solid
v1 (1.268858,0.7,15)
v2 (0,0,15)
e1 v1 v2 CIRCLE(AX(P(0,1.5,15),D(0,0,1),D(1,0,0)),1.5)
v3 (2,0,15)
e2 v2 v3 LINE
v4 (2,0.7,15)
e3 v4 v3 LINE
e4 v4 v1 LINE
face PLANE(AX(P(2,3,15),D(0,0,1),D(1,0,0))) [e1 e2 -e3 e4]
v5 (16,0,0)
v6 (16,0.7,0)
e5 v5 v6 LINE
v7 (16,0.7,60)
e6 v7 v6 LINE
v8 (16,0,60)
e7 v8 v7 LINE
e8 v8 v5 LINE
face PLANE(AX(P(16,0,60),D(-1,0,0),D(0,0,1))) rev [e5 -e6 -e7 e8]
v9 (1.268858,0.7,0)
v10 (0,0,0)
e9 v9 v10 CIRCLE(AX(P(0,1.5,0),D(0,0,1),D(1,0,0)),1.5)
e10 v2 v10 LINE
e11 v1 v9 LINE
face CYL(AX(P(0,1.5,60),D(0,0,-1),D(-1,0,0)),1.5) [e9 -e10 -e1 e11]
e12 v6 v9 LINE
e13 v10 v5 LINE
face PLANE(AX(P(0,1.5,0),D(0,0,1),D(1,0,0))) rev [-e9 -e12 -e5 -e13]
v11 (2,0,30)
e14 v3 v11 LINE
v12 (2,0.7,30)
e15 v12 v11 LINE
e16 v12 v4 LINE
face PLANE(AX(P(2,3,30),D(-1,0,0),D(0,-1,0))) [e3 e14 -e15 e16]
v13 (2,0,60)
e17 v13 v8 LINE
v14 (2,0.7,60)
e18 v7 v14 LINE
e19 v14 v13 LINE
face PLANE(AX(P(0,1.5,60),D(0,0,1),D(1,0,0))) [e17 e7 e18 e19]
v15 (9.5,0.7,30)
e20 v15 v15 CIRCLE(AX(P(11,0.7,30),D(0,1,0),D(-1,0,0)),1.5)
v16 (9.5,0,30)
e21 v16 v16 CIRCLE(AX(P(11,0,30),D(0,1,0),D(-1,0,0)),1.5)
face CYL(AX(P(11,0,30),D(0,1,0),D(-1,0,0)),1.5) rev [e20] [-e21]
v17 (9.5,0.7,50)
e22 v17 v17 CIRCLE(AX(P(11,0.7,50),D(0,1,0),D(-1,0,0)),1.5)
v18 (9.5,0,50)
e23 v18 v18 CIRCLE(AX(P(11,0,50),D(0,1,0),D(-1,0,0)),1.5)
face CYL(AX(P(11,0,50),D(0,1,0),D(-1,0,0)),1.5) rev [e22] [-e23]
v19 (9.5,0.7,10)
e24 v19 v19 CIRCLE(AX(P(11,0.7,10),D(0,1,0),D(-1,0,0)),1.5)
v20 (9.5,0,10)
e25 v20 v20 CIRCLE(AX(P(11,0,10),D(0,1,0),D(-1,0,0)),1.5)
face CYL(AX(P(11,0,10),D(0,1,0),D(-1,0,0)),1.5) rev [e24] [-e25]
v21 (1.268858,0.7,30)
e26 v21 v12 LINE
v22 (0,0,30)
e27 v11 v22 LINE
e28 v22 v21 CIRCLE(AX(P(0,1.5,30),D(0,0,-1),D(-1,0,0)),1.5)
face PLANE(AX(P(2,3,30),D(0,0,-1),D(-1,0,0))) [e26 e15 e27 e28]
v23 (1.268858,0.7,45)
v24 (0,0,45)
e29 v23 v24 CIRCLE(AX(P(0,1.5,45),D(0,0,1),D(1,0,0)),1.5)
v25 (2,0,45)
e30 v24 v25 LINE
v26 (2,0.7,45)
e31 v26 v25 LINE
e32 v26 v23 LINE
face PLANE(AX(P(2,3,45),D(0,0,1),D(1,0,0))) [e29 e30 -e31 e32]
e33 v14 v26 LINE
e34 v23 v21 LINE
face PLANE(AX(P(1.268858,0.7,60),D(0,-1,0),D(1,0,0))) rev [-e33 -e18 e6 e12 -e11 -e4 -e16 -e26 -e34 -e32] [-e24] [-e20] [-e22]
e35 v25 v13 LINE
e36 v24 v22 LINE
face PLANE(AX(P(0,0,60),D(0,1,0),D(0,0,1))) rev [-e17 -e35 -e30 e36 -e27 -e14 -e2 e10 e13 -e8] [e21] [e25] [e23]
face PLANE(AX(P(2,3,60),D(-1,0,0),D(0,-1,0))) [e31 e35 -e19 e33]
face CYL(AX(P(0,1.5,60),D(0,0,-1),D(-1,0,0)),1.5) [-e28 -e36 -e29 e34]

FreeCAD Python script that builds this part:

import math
import FreeCAD as App
import Part
import Sketcher
from FreeCAD import Vector


def add_polygon(sketch, points):
    """Adds a closed chain of lines whose ends are joined by coincident constraints."""
    first, n = sketch.GeometryCount, len(points)
    for a, b in zip(points, points[1:] + points[:1]):
        sketch.addGeometry(Part.LineSegment(App.Vector(*a, 0), App.Vector(*b, 0)), False)
    for i in range(n):
        sketch.addConstraint(Sketcher.Constraint("Coincident", first + i, 2, first + (i + 1) % n, 1))

doc = App.newDocument("Part")
body = doc.addObject("PartDesign::Body", "Body")

sketch1 = body.newObject("Sketcher::SketchObject", "Sketch")
sketch1.AttachmentSupport = (doc.getObject("XY_Plane"), [""])
sketch1.MapMode = "FlatFace"
sketch1.addGeometry(Part.LineSegment(Vector(0, 0, 0), Vector(16, 0, 0)), False)
sketch1.addGeometry(Part.LineSegment(Vector(16, 0, 0), Vector(16, 0.7, 0)), False)
sketch1.addGeometry(Part.LineSegment(Vector(16, 0.7, 0), Vector(1.3, 0.7, 0)), False)
sketch1.addGeometry(Part.ArcOfCircle(Part.Circle(Vector(0, 1.5, 0), Vector(0, 0, 1), 1.5), math.radians(-32), math.radians(270)), False)
sketch1.addConstraint(Sketcher.Constraint("Coincident", 0, 2, 1, 1))
sketch1.addConstraint(Sketcher.Constraint("Coincident", 1, 2, 2, 1))
sketch1.addConstraint(Sketcher.Constraint("Coincident", 2, 2, 3, 1))
sketch1.addConstraint(Sketcher.Constraint("Tangent", 3, 2, 0, 1))
sketch1.addConstraint(Sketcher.Constraint("Horizontal", 0))
sketch1.addConstraint(Sketcher.Constraint("Vertical", 1))
sketch1.addConstraint(Sketcher.Constraint("Horizontal", 2))
sketch1.addConstraint(Sketcher.Constraint("Coincident", 3, 2, -1, 1))
sketch1.addConstraint(Sketcher.Constraint("Radius", 3, 1.5))
sketch1.addConstraint(Sketcher.Constraint("DistanceX", 0, 1, 0, 2, 16.0))
sketch1.addConstraint(Sketcher.Constraint("DistanceY", 1, 1, 1, 2, 0.7))
pad1 = body.newObject("PartDesign::Pad", "Pad")
pad1.Profile = sketch1
pad1.Length = 60

sketch2 = body.newObject("Sketcher::SketchObject", "Sketch001")
sketch2.AttachmentSupport = (doc.getObject("XZ_Plane"), [""])
sketch2.MapMode = "FlatFace"
sketch2.AttachmentOffset = App.Placement(Vector(0, 0, 9.3), App.Rotation())
add_polygon(sketch2, [(-5, 45), (-5, 60), (2, 60), (2, 45)])
sketch2.addConstraint(Sketcher.Constraint("Vertical", 0))
sketch2.addConstraint(Sketcher.Constraint("Horizontal", 1))
sketch2.addConstraint(Sketcher.Constraint("Vertical", 2))
sketch2.addConstraint(Sketcher.Constraint("Horizontal", 3))
sketch2.addConstraint(Sketcher.Constraint("DistanceY", 0, 1, 0, 2, 15.0))
sketch2.addConstraint(Sketcher.Constraint("DistanceY", -1, 1, 0, 2, 60.0))
sketch2.addConstraint(Sketcher.Constraint("DistanceX", -1, 1, 1, 2, 2.0))
sketch2.addConstraint(Sketcher.Constraint("DistanceX", 1, 1, 1, 2, 7.046962))
pocket1 = body.newObject("PartDesign::Pocket", "Pocket")
pocket1.Profile = sketch2
pocket1.Type = "ThroughAll"
doc.recompute()

linearpattern = body.newObject("PartDesign::LinearPattern", "LinearPattern")
linearpattern.Originals = [pocket1]
linearpattern.Direction = (doc.getObject("Z_Axis"), [""])
linearpattern.Mode = "offset"
linearpattern.Offset = 30
linearpattern.Occurrences = 2
linearpattern.Reversed = True
body.Tip = linearpattern

sketch3 = body.newObject("Sketcher::SketchObject", "Sketch002")
sketch3.AttachmentSupport = (doc.getObject("XZ_Plane"), [""])
sketch3.MapMode = "FlatFace"
sketch3.AttachmentOffset = App.Placement(Vector(0, 0, -0.7), App.Rotation())
sketch3.addGeometry(Part.Circle(Vector(11, 50, 0), Vector(0, 0, 1), 1.5), False)
sketch3.addConstraint(Sketcher.Constraint("Diameter", 0, 3.0))
sketch3.addConstraint(Sketcher.Constraint("DistanceX", -1, 1, 0, 3, 11.0))
sketch3.addConstraint(Sketcher.Constraint("DistanceY", -1, 1, 0, 3, 50.0))
pocket2 = body.newObject("PartDesign::Pocket", "Pocket001")
pocket2.Profile = sketch3
pocket2.Type = "ThroughAll"
pocket2.Reversed = True
doc.recompute()

linearpattern2 = body.newObject("PartDesign::LinearPattern", "LinearPattern001")
linearpattern2.Originals = [pocket2]
linearpattern2.Direction = (doc.getObject("Z_Axis"), [""])
linearpattern2.Mode = "offset"
linearpattern2.Offset = 20
linearpattern2.Occurrences = 3
linearpattern2.Reversed = True
body.Tip = linearpattern2

doc.recompute()
